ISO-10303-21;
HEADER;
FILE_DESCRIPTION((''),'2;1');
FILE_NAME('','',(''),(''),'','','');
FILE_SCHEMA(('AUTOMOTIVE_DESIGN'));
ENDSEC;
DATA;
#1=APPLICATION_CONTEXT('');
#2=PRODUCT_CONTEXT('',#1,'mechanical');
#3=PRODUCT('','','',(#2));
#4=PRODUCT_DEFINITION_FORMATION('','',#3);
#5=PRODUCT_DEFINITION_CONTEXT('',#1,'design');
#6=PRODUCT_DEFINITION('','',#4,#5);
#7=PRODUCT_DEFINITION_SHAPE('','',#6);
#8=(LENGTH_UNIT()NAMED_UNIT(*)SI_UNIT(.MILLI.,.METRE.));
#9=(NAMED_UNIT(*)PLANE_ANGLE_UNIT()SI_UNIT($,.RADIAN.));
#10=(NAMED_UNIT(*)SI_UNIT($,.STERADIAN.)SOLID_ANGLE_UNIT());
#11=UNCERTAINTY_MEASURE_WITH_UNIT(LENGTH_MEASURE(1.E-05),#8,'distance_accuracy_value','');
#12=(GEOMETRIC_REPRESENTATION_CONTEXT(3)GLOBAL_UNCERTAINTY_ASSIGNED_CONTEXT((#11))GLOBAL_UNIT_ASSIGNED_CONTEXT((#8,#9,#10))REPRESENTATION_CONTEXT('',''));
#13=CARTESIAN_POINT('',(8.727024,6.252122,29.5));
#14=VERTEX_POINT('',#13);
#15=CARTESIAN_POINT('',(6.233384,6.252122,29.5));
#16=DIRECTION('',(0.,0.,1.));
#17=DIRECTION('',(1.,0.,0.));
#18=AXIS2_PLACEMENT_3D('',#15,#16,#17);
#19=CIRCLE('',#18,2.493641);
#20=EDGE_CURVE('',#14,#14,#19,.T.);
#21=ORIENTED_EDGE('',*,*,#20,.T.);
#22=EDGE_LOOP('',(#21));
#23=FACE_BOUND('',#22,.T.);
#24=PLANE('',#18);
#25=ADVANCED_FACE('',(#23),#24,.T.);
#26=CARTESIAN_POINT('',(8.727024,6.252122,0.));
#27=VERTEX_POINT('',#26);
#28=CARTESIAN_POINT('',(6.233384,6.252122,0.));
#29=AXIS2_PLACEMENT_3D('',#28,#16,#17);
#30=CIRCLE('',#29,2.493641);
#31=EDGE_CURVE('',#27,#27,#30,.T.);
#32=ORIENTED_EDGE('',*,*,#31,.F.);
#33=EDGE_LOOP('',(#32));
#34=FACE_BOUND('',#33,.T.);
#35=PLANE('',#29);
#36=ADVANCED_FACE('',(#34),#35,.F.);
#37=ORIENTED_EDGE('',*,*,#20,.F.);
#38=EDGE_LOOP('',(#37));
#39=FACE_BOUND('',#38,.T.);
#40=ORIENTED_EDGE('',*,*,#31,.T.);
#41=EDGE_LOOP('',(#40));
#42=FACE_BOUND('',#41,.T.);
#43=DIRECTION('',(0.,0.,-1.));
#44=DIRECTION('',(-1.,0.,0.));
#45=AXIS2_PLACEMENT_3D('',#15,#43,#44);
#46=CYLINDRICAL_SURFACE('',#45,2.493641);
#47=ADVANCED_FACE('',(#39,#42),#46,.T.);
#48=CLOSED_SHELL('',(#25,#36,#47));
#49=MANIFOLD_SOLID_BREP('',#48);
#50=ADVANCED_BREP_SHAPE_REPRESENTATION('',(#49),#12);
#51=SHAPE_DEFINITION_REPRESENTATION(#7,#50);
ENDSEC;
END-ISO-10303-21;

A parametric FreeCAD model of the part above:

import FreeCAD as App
import Part
import Sketcher

doc = App.newDocument("Part")
body = doc.addObject("PartDesign::Body", "Body")

sketch1 = body.newObject("Sketcher::SketchObject", "Sketch")
sketch1.AttachmentSupport = (doc.getObject("XY_Plane"), [""])
sketch1.MapMode = "FlatFace"
sketch1.addGeometry(Part.Circle(App.Vector(6.2, 6.3, 0), App.Vector(0, 0, 1), 2.5), False)
sketch1.addConstraint(Sketcher.Constraint("Diameter", 0, 4.987281))
sketch1.addConstraint(Sketcher.Constraint("DistanceX", -1, 1, 0, 3, 6.233384))
sketch1.addConstraint(Sketcher.Constraint("DistanceY", -1, 1, 0, 3, 6.252122))
pad1 = body.newObject("PartDesign::Pad", "Pad")
pad1.Profile = sketch1
pad1.Length = 29.5

doc.recompute()
